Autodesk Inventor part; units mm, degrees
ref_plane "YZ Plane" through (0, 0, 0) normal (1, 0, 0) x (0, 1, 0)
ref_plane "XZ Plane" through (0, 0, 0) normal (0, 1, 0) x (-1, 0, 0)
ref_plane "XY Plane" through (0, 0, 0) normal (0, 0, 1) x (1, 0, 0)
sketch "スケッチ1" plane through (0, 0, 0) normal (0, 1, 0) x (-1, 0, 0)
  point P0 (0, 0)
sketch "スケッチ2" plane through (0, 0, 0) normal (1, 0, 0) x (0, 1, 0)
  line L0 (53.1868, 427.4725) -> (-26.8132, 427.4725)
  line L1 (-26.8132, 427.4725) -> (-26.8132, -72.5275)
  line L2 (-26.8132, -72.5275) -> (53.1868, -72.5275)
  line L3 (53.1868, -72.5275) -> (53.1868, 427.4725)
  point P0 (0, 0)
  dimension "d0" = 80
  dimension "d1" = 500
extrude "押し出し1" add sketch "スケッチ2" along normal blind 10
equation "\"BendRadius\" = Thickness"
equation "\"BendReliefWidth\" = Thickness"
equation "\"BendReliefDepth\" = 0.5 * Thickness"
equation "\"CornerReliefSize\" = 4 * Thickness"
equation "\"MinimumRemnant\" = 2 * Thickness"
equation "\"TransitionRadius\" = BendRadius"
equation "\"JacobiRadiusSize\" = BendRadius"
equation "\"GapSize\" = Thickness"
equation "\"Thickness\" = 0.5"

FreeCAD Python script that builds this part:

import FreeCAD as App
import Part
import Sketcher
from FreeCAD import Vector
Q = App.Units.Quantity

doc = App.newDocument("Part")
body = doc.addObject("PartDesign::Body", "Body")

sketch1 = body.newObject("Sketcher::SketchObject", "Sketch")
sketch1.AttachmentSupport = (doc.getObject("YZ_Plane"), [""])
sketch1.MapMode = "FlatFace"
sketch1.addGeometry([
    Part.LineSegment(Vector(53.1868, -72.5275, 0), Vector(53.1868, 427.4725, 0)),
    Part.LineSegment(Vector(53.1868, 427.4725, 0), Vector(-26.8132, 427.4725, 0)),
    Part.LineSegment(Vector(-26.8132, 427.4725, 0), Vector(-26.8132, -72.5275, 0)),
    Part.LineSegment(Vector(-26.8132, -72.5275, 0), Vector(53.1868, -72.5275, 0)),
], False)
sketch1.addConstraint([
    Sketcher.Constraint("Coincident", 0, 2, 1, 1),
    Sketcher.Constraint("Coincident", 1, 2, 2, 1),
    Sketcher.Constraint("Coincident", 2, 2, 3, 1),
    Sketcher.Constraint("Coincident", 3, 2, 0, 1),
    Sketcher.Constraint("Vertical", 0),
    Sketcher.Constraint("Horizontal", 1),
    Sketcher.Constraint("Vertical", 2),
    Sketcher.Constraint("Horizontal", 3),
    Sketcher.Constraint("DistanceX", 1, 2, 1, 1, Q("80 mm")),
    Sketcher.Constraint("DistanceY", 0, 1, 0, 2, Q("500 mm")),
    Sketcher.Constraint("DistanceX", -1, 1, 0, 2, Q("53.1868 mm")),
    Sketcher.Constraint("DistanceY", -1, 1, 0, 2, Q("427.4725 mm")),
])
pad1 = body.newObject("PartDesign::Pad", "Pad")
pad1.Profile = sketch1
pad1.Length = 10

doc.recompute()
